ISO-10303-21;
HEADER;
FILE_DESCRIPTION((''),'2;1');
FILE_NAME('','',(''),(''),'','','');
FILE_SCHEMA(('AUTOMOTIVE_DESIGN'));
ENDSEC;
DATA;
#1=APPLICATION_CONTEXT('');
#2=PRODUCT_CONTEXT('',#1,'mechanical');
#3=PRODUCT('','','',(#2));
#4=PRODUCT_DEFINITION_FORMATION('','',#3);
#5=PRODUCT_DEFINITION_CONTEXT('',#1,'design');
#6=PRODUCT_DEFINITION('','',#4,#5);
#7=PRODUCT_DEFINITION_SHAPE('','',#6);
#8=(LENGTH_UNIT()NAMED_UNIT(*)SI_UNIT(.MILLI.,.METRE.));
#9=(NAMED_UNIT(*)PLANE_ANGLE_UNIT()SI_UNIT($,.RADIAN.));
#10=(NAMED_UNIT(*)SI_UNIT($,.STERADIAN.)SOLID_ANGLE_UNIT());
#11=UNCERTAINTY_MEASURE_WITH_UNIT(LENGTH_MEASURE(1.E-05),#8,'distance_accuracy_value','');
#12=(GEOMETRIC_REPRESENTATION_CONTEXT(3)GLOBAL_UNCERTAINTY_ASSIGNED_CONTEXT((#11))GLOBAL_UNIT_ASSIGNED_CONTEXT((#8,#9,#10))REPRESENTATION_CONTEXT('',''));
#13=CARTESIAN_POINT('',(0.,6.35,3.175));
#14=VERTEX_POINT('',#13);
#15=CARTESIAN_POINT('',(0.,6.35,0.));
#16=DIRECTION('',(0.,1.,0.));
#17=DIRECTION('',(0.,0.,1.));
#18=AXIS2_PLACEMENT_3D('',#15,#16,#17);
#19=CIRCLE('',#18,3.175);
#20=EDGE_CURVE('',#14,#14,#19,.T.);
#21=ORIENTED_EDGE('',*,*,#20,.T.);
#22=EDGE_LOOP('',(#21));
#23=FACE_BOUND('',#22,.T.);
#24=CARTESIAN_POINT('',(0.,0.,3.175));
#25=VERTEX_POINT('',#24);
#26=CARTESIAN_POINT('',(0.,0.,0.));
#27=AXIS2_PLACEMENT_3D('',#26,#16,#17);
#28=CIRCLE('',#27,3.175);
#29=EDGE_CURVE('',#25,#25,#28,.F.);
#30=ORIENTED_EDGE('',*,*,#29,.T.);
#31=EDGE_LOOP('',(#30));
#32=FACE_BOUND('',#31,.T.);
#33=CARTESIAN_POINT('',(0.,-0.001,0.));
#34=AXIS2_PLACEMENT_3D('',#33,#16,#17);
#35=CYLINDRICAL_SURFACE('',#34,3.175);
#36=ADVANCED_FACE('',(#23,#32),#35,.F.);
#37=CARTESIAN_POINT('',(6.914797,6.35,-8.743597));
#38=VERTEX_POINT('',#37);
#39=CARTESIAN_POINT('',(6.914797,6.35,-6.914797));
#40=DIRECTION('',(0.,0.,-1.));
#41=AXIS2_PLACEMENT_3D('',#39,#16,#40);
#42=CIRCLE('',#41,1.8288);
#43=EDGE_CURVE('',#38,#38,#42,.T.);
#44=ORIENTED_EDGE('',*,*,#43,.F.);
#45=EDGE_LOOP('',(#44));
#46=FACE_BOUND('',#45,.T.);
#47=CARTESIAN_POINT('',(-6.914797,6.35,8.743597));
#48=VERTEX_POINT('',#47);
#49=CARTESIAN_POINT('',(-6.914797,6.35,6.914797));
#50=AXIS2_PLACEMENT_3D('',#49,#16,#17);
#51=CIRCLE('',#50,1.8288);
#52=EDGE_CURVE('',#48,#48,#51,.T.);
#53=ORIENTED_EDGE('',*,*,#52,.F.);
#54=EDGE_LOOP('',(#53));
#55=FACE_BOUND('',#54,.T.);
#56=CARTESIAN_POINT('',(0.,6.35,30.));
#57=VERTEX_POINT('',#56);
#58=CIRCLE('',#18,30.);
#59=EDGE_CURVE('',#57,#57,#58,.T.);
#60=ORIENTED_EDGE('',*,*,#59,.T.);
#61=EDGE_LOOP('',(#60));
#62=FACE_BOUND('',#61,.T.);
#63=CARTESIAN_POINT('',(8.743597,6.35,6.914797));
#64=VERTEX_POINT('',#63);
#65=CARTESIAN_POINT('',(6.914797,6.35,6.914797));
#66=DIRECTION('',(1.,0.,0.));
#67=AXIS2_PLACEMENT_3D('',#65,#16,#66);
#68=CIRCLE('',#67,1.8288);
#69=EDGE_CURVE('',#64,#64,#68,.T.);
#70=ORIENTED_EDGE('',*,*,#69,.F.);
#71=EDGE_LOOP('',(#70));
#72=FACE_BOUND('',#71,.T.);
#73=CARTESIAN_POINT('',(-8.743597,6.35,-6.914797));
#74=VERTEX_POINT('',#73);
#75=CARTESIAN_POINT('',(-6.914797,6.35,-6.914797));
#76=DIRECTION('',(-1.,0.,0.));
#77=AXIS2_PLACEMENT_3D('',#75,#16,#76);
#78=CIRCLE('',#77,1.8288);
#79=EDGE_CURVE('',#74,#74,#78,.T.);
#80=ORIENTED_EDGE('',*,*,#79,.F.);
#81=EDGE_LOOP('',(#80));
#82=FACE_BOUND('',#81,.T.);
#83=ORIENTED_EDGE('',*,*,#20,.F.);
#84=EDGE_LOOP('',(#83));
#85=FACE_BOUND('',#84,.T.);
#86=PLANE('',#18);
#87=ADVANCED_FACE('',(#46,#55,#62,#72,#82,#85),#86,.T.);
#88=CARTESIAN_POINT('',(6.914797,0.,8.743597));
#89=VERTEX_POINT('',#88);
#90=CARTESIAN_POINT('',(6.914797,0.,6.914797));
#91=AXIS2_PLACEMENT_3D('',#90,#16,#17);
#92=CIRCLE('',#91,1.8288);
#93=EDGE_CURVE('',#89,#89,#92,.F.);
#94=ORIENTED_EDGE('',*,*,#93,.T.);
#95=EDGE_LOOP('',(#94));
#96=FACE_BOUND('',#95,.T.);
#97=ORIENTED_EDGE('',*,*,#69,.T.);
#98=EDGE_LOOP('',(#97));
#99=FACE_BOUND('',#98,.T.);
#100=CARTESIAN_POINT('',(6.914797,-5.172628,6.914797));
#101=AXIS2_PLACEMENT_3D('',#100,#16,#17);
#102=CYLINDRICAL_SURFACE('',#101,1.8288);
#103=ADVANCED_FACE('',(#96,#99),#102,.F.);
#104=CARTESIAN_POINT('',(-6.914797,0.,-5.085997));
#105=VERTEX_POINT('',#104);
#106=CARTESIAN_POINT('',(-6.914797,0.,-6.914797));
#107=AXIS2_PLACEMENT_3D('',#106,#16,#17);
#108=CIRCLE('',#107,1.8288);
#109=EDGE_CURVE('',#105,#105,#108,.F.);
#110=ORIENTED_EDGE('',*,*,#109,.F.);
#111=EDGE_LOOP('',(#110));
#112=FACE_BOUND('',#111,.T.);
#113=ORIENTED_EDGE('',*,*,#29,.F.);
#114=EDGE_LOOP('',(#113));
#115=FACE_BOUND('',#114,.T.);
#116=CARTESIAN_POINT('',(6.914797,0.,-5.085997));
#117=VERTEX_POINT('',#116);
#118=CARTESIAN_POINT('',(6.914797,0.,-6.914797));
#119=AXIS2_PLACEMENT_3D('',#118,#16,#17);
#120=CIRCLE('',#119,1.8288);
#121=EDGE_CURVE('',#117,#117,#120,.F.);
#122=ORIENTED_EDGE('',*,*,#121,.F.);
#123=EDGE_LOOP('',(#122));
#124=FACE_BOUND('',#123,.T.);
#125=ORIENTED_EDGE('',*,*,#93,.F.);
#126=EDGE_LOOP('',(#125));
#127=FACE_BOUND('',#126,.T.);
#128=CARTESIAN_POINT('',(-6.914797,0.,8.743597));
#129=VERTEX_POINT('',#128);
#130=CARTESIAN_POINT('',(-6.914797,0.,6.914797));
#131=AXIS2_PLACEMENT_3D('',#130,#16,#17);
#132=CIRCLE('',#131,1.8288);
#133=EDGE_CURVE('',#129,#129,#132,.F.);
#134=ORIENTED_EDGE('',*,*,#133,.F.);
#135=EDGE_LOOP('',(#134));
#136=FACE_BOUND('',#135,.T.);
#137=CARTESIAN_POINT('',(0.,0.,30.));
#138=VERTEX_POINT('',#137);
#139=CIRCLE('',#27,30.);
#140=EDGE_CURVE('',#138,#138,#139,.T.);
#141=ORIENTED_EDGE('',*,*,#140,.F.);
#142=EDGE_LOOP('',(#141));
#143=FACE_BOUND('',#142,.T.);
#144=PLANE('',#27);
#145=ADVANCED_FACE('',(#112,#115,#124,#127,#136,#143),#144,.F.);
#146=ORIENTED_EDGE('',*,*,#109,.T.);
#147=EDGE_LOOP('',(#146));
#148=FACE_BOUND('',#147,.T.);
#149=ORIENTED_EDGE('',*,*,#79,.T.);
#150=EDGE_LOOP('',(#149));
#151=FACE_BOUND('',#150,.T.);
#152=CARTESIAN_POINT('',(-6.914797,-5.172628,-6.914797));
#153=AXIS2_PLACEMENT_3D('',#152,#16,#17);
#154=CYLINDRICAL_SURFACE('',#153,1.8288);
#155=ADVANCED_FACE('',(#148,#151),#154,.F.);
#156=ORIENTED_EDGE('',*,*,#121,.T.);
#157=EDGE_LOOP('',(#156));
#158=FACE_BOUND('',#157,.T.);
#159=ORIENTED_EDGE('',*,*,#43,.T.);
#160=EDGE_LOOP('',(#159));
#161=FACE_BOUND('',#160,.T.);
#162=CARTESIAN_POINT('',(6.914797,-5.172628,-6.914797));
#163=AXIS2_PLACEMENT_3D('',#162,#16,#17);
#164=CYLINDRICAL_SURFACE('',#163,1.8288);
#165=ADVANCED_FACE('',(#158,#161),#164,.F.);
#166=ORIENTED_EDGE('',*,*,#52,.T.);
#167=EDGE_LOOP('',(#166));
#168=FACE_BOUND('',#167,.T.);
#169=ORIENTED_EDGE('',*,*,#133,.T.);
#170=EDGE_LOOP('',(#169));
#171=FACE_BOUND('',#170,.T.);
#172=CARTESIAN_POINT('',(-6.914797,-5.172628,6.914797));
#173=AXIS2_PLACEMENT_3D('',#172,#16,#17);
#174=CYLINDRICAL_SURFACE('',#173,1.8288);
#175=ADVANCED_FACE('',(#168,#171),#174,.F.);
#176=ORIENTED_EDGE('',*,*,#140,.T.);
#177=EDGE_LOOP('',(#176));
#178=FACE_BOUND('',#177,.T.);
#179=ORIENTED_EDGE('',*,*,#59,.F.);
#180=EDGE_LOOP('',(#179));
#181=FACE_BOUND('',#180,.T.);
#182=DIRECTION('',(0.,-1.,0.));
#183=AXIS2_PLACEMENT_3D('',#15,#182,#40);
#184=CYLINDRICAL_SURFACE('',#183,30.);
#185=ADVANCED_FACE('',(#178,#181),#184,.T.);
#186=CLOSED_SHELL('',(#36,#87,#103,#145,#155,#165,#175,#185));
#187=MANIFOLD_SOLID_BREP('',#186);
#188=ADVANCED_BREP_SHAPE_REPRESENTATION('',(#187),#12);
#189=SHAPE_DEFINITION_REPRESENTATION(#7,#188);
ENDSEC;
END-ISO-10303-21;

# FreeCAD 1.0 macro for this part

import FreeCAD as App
import Part
import Sketcher
from FreeCAD import Vector
Q = App.Units.Quantity

doc = App.newDocument("Part")
body = doc.addObject("PartDesign::Body", "Body")

sketch1 = doc.addObject("Sketcher::SketchObject", "Sketch")
body.addObject(sketch1)
sketch1.AttachmentSupport = (doc.XZ_Plane, [""])
sketch1.MapMode = "FlatFace"
sketch1.addGeometry(Part.Circle(Vector(0, 0, 0), Vector(0, 0, 1), 30), False)
sketch1.addConstraint([
    Sketcher.Constraint("Coincident", 0, 3, -1, 1),
    Sketcher.Constraint("Diameter", 0, Q("60 mm")),
])
pad1 = doc.addObject("PartDesign::Pad", "Pad")
body.addObject(pad1)
pad1.Profile = sketch1
pad1.Length = Q("0.25 in")
pad1.Reversed = True

sketch2 = doc.addObject("Sketcher::SketchObject", "Sketch001")
body.addObject(sketch2)
sketch2.AttachmentSupport = (doc.XZ_Plane, [""])
sketch2.MapMode = "FlatFace"
sketch2.AttachmentOffset = App.Placement(Vector(0, 0, -0.25 * 25.4), App.Rotation())
sketch2.addGeometry(Part.Circle(Vector(0, 0, 0), Vector(0, 0, 1), 3.2), False)
sketch2.addConstraint([
    Sketcher.Constraint("Coincident", 0, 3, -1, 1),
    Sketcher.Constraint("Diameter", 0, Q("0.25 in")),
])
pocket1 = doc.addObject("PartDesign::Pocket", "Pocket")
body.addObject(pocket1)
pocket1.Profile = sketch2
pocket1.Type = "UpToFirst"
pocket1.Reversed = True

sketch3 = doc.addObject("Sketcher::SketchObject", "Sketch002")
body.addObject(sketch3)
sketch3.AttachmentSupport = (doc.XZ_Plane, [""])
sketch3.MapMode = "FlatFace"
sketch3.AttachmentOffset = App.Placement(Vector(0, 0, -0.25 * 25.4), App.Rotation())
sketch3.addGeometry(Part.Circle(Vector(-6.9, 6.9, 0), Vector(0, 0, 1), 1.8), False)
sketch3.addConstraint([
    Sketcher.Constraint("Diameter", 0, Q("0.144 in")),
    Sketcher.Constraint("DistanceX", 0, 3, -1, 1, Q("6.914797 mm")),
    Sketcher.Constraint("DistanceY", -1, 1, 0, 3, Q("6.914797 mm")),
])
pocket2 = doc.addObject("PartDesign::Pocket", "Pocket001")
body.addObject(pocket2)
pocket2.Profile = sketch3
pocket2.Length = Q("0.25 in")
pocket2.Reversed = True
doc.recompute()

polarpattern = doc.addObject("PartDesign::PolarPattern", "PolarPattern")
body.addObject(polarpattern)
polarpattern.Originals = [pocket2]
polarpattern.Axis = (doc.Y_Axis, [""])
polarpattern.Angle = 360
polarpattern.Occurrences = 4
body.Tip = polarpattern

doc.recompute()
